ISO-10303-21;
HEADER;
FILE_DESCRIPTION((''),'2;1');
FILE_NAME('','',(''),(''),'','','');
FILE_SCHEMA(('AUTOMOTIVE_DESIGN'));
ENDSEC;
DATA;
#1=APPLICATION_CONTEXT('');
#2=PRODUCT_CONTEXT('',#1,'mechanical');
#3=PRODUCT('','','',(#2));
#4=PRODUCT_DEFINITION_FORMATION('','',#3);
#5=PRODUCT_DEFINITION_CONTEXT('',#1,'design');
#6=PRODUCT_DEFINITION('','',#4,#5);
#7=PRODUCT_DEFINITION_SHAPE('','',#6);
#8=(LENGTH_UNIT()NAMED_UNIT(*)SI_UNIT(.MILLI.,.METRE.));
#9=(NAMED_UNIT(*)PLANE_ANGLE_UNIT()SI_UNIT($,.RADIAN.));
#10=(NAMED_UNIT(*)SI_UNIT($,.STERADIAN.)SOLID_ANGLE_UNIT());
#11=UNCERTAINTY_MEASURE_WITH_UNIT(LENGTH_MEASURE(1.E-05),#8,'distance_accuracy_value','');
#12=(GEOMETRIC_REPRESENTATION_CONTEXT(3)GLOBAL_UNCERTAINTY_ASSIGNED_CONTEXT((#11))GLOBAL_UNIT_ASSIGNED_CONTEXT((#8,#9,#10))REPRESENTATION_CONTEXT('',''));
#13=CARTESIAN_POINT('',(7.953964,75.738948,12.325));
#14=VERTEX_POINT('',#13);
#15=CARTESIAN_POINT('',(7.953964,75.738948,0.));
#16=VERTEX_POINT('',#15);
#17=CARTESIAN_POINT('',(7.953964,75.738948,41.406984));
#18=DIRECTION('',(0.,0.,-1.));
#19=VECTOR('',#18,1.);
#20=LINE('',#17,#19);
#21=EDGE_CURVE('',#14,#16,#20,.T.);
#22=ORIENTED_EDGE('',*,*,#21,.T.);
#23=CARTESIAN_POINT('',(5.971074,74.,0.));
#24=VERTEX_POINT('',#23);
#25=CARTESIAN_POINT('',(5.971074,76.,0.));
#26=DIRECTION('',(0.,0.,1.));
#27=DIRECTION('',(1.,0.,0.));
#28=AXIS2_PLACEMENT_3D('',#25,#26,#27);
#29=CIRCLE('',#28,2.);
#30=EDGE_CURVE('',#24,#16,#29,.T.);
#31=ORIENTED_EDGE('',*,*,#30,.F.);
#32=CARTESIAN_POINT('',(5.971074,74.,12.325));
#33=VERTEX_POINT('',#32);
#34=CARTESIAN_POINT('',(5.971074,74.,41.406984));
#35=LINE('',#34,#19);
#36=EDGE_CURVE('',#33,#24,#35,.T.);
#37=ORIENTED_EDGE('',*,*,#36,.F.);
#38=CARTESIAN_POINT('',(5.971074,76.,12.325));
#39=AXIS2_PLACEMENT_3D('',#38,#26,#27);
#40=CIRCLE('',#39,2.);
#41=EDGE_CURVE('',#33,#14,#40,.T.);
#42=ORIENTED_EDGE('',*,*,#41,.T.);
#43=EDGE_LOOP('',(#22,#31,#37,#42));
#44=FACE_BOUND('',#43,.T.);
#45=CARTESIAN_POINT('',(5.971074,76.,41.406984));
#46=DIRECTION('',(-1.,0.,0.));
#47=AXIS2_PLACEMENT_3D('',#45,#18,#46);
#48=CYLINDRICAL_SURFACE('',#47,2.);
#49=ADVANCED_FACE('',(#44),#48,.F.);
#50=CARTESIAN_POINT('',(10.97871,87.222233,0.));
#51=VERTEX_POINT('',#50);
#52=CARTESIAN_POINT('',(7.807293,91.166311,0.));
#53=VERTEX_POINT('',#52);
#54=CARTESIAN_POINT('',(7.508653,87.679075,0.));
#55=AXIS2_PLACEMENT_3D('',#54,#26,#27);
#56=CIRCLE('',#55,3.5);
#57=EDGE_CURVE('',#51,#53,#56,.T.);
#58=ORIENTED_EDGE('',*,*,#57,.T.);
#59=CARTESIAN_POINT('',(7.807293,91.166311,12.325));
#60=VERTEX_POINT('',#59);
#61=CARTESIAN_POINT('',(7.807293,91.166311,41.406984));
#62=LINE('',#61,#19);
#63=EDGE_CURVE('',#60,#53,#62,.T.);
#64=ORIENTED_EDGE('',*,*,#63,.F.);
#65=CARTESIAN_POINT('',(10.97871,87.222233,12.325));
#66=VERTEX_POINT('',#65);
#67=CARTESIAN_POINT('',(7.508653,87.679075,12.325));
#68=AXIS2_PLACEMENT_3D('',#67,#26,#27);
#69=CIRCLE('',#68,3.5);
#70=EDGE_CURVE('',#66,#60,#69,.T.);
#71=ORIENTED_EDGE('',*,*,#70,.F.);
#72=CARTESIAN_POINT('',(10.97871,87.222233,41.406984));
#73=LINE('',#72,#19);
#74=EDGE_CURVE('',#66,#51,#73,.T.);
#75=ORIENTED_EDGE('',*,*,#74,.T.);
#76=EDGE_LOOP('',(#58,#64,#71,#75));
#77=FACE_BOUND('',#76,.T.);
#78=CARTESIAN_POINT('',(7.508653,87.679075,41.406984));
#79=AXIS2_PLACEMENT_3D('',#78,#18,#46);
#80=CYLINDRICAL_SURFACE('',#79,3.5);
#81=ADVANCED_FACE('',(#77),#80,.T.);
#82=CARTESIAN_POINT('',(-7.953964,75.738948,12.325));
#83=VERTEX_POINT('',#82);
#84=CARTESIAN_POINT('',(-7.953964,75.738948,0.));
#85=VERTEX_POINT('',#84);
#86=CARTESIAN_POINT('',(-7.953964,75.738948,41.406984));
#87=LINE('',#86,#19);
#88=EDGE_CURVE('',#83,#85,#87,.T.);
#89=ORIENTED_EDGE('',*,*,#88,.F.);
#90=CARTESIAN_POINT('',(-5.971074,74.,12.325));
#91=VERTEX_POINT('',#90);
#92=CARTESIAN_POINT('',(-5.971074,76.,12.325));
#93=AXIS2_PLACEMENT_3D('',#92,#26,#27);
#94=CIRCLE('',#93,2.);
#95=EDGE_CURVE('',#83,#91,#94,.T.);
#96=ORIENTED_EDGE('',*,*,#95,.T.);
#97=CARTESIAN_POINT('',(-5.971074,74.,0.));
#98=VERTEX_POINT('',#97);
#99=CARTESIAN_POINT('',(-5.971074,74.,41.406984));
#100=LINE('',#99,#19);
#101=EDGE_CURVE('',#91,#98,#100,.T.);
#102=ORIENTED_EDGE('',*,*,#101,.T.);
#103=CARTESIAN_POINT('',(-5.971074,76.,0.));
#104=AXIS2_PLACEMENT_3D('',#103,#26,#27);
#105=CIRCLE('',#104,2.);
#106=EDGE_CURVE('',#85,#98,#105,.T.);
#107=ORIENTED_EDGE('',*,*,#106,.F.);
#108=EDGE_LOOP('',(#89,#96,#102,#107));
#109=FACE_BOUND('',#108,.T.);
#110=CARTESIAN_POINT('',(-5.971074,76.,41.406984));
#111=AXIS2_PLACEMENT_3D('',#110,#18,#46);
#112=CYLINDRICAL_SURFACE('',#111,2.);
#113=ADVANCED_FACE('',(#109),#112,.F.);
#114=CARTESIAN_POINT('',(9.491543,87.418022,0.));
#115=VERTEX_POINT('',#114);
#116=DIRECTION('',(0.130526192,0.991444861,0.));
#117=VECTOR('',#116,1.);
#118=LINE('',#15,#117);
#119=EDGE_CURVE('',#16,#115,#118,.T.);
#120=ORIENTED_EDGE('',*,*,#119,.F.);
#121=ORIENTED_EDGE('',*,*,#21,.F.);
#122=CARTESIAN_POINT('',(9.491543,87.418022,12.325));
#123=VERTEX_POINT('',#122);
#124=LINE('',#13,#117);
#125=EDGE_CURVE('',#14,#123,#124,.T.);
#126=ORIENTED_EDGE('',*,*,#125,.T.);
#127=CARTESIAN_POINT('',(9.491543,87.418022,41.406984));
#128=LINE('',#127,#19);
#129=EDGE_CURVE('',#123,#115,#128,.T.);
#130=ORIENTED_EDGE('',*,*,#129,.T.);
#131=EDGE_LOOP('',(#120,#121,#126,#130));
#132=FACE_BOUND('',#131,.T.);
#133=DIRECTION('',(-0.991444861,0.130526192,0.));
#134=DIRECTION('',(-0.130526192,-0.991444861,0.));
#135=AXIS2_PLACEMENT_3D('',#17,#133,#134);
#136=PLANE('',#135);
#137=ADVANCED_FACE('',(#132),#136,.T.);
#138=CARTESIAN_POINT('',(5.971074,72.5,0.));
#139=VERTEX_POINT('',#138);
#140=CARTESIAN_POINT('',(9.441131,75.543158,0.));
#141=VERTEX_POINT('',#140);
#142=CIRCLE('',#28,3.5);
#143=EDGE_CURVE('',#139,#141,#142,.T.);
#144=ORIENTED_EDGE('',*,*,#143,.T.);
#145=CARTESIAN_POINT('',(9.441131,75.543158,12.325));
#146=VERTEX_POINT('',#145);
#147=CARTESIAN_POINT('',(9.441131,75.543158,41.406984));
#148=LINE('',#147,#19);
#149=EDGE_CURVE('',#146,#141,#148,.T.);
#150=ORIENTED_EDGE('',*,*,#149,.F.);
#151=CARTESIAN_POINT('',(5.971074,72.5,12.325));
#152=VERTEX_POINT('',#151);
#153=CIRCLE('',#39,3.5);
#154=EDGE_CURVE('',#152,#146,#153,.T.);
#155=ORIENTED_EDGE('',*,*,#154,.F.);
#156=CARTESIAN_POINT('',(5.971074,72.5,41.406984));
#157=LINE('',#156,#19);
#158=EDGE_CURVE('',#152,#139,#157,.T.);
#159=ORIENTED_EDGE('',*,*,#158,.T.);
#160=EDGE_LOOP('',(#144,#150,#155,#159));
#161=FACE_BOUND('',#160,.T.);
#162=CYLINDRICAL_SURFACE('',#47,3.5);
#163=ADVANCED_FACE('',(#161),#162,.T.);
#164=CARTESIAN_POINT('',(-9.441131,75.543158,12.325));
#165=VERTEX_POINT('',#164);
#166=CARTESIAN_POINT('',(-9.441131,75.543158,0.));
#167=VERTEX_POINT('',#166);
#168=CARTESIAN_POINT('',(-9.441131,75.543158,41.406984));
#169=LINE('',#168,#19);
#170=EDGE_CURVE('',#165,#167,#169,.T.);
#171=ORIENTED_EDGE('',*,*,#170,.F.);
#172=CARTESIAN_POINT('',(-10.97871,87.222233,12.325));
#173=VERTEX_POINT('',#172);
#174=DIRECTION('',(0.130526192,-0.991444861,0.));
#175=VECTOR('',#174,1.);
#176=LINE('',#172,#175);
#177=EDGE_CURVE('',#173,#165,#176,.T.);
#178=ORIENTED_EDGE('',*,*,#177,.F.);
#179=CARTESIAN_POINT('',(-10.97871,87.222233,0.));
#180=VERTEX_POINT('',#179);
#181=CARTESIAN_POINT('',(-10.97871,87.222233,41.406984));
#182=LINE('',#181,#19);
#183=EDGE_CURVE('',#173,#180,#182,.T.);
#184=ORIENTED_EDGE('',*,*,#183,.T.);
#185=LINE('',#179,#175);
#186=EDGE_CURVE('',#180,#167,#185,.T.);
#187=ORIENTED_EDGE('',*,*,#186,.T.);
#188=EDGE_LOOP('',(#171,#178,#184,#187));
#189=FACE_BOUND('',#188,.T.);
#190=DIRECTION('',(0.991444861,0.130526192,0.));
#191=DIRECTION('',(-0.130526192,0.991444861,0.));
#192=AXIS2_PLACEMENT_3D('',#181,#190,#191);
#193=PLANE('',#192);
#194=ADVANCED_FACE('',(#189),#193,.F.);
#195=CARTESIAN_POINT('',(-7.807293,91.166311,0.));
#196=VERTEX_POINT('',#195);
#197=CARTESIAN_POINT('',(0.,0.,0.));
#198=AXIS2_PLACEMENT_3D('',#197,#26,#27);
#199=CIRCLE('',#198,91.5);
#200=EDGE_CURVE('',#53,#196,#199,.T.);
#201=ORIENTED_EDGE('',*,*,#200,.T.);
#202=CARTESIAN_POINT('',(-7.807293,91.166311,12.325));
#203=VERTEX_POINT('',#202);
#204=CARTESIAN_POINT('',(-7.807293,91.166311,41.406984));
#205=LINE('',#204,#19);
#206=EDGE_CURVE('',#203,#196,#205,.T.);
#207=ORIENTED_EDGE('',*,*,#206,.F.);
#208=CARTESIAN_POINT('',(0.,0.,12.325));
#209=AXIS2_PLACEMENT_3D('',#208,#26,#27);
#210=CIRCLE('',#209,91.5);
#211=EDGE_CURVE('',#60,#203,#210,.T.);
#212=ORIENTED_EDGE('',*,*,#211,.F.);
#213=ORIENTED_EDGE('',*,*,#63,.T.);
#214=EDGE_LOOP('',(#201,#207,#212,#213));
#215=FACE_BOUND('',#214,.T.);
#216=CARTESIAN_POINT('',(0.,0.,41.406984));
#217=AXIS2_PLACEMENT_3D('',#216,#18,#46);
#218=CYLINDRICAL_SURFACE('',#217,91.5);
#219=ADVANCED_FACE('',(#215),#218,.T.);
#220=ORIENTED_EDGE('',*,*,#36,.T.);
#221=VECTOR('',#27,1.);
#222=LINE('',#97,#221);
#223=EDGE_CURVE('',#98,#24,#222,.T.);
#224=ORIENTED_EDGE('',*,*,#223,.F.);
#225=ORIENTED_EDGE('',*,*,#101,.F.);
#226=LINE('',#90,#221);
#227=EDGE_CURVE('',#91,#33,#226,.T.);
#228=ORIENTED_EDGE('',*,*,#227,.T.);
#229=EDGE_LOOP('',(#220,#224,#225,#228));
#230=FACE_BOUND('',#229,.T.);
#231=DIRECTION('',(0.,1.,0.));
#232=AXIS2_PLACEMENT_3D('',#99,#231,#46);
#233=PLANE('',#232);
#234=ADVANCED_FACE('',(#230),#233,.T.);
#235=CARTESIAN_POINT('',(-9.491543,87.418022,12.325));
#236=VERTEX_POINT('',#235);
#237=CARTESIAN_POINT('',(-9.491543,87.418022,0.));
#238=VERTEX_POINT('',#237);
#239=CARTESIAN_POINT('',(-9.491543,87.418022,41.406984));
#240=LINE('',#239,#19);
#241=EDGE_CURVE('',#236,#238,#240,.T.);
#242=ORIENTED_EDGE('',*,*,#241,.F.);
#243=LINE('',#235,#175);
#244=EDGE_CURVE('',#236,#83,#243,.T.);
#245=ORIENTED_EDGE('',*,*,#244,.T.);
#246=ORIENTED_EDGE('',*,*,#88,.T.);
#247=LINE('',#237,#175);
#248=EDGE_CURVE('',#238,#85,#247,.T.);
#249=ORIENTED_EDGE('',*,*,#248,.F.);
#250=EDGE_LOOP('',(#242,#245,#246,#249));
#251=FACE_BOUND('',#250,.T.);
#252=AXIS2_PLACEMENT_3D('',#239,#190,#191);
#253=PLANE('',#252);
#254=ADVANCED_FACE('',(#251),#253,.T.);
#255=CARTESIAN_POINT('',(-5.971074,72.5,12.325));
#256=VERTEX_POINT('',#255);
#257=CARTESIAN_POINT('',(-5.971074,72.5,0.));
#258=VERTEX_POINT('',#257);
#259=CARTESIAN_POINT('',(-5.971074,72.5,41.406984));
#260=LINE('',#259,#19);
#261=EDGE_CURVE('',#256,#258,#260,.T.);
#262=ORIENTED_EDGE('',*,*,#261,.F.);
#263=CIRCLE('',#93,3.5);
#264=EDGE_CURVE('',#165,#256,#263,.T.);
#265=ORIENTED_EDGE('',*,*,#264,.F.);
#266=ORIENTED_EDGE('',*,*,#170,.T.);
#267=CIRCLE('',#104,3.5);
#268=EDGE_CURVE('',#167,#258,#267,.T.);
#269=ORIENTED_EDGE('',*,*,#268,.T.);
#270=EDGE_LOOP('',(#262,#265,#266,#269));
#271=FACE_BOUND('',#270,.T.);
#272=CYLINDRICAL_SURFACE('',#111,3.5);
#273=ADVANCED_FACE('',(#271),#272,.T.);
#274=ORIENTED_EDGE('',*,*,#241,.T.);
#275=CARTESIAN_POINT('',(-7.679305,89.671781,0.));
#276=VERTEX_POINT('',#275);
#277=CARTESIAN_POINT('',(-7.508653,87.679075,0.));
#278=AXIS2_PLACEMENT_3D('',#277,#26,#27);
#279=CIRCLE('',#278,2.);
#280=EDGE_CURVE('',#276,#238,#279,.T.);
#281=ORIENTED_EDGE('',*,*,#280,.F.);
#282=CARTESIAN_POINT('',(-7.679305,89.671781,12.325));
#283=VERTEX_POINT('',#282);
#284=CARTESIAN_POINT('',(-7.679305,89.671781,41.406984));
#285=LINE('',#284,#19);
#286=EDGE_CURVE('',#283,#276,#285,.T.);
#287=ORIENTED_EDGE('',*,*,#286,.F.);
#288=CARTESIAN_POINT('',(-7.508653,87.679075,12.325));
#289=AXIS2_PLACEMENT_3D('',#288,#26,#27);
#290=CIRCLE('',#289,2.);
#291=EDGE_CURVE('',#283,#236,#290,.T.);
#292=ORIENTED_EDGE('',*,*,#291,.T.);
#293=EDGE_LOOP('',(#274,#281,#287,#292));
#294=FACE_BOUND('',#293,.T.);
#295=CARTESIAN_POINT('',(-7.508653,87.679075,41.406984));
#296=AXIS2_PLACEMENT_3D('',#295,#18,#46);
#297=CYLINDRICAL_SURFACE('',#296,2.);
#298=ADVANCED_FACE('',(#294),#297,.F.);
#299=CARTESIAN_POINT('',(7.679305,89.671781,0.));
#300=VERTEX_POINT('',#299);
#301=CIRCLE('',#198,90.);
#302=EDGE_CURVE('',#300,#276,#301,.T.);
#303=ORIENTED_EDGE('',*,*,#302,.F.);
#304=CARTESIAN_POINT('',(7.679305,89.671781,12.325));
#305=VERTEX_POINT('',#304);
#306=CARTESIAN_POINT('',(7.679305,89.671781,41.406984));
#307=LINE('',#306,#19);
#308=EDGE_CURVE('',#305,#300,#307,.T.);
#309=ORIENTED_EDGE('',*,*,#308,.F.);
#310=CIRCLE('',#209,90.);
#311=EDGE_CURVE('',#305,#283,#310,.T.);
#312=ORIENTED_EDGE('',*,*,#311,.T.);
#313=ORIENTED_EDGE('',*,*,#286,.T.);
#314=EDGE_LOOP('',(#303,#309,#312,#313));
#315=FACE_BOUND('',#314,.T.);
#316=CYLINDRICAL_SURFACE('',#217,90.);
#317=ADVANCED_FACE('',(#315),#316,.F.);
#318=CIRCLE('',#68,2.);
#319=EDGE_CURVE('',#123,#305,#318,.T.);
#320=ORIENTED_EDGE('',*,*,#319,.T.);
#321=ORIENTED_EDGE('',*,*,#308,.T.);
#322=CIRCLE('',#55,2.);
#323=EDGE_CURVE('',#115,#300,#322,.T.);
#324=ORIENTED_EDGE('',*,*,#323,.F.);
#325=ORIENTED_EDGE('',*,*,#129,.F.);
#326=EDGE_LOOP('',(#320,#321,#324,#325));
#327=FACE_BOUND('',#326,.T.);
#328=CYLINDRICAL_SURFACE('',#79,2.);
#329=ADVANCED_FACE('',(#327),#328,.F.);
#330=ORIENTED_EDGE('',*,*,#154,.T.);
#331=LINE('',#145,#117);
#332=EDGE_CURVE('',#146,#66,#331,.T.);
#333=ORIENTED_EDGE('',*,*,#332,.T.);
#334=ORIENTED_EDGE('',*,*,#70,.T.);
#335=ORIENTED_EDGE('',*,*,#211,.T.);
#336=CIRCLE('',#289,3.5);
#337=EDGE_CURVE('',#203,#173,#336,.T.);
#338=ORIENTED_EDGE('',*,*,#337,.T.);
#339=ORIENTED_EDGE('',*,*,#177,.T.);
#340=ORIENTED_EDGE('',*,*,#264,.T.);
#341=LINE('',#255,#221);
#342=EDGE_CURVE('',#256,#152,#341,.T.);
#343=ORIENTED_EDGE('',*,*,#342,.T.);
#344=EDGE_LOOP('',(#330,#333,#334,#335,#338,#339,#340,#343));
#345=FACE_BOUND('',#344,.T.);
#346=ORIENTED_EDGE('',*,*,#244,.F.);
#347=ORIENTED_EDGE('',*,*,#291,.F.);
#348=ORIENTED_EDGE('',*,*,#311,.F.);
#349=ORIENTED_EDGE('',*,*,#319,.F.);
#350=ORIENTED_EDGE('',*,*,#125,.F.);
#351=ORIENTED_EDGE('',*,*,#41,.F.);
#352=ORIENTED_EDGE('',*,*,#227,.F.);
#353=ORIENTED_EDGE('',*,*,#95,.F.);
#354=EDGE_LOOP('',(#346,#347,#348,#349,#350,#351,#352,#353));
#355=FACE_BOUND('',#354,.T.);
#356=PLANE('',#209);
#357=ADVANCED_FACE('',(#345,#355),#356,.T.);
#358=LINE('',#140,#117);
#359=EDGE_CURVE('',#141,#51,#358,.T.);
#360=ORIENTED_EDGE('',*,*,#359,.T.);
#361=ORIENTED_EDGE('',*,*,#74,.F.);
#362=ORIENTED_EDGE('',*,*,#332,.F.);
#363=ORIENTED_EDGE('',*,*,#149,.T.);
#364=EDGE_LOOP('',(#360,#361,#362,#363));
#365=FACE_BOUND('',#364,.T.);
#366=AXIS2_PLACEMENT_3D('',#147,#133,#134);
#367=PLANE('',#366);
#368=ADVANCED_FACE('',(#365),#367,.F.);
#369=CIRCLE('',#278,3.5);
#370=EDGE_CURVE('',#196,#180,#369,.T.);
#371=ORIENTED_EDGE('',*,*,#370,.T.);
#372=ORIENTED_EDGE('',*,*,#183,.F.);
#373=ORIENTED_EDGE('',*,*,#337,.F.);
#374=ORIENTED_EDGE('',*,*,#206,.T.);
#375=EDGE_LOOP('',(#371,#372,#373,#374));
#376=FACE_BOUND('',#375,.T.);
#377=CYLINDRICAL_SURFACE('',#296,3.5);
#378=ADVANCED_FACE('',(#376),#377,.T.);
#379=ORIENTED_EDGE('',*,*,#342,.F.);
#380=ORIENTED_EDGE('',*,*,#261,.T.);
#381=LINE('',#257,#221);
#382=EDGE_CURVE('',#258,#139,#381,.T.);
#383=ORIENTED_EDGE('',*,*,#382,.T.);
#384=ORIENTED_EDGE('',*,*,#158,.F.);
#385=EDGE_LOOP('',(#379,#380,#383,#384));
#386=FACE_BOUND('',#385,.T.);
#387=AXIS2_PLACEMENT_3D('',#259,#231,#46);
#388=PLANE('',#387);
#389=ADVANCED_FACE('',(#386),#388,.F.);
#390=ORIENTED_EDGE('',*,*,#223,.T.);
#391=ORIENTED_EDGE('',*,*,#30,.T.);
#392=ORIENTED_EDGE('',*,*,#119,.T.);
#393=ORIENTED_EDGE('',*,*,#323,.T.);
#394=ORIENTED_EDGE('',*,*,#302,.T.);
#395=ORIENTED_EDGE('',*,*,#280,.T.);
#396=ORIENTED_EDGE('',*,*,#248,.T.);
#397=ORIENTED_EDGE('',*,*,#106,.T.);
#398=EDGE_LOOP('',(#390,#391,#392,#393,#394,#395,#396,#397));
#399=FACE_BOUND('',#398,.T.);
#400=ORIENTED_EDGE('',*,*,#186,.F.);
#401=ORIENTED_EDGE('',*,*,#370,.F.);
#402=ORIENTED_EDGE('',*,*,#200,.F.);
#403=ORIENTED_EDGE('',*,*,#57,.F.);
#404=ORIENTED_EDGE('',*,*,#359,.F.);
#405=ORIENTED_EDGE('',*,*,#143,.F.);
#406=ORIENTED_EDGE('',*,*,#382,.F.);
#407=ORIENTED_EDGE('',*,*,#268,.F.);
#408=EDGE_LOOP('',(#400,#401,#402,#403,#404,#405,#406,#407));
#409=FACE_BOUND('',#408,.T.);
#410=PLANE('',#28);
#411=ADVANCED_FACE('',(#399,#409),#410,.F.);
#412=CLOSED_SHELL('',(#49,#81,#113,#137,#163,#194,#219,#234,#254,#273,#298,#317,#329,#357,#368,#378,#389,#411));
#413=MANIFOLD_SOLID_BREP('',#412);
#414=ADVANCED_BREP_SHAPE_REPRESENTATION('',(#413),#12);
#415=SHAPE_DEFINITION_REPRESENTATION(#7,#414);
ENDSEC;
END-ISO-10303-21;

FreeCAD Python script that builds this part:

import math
import FreeCAD as App
import Part
import Sketcher
Q = App.Units.Quantity

doc = App.newDocument("Part")
body = doc.addObject("PartDesign::Body", "Body")

sketch1 = doc.addObject("Sketcher::SketchObject", "Sketch")
body.addObject(sketch1)
sketch1.AttachmentSupport = (doc.XY_Plane, [""])
sketch1.MapMode = "FlatFace"
sketch1.addGeometry([
    Part.LineSegment(App.Vector(9.4, 75.5, 0), App.Vector(11, 87.2, 0)),
    Part.ArcOfCircle(Part.Circle(App.Vector(7.5, 87.7, 0), App.Vector(0, 0, 1), 3.5), math.radians(-8), math.radians(85)),
    Part.ArcOfCircle(Part.Circle(App.Vector(0, 0, 0), App.Vector(0, 0, 1), 91.5), math.radians(85.11), math.radians(94.89)),
    Part.ArcOfCircle(Part.Circle(App.Vector(-7.5, 87.7, 0), App.Vector(0, 0, 1), 3.5), math.radians(95), math.radians(188)),
    Part.LineSegment(App.Vector(-11, 87.2, 0), App.Vector(-9.4, 75.5, 0)),
    Part.ArcOfCircle(Part.Circle(App.Vector(-6, 76, 0), App.Vector(0, 0, 1), 3.5), math.radians(-172), math.radians(-90)),
    Part.LineSegment(App.Vector(-6, 72.5, 0), App.Vector(6, 72.5, 0)),
    Part.ArcOfCircle(Part.Circle(App.Vector(6, 76, 0), App.Vector(0, 0, 1), 3.5), math.radians(-90), math.radians(-8)),
    Part.LineSegment(App.Vector(-8, 75.7, 0), App.Vector(-9.5, 87.4, 0)),
    Part.ArcOfCircle(Part.Circle(App.Vector(-7.5, 87.7, 0), App.Vector(0, 0, 1), 2), math.radians(95), math.radians(187)),
    Part.ArcOfCircle(Part.Circle(App.Vector(0, 0, 0), App.Vector(0, 0, 1), 90), math.radians(85.11), math.radians(94.89)),
    Part.ArcOfCircle(Part.Circle(App.Vector(7.5, 87.7, 0), App.Vector(0, 0, 1), 2), math.radians(-7), math.radians(85)),
    Part.LineSegment(App.Vector(9.5, 87.4, 0), App.Vector(8, 75.7, 0)),
    Part.ArcOfCircle(Part.Circle(App.Vector(6, 76, 0), App.Vector(0, 0, 1), 2), math.radians(-90), math.radians(-7)),
    Part.LineSegment(App.Vector(6, 74, 0), App.Vector(-6, 74, 0)),
    Part.ArcOfCircle(Part.Circle(App.Vector(-6, 76, 0), App.Vector(0, 0, 1), 2), math.radians(-173), math.radians(-90)),
], False)
sketch1.addConstraint([
    Sketcher.Constraint("Tangent", 0, 2, 1, 1),
    Sketcher.Constraint("Tangent", 1, 2, 2, 1),
    Sketcher.Constraint("Tangent", 2, 2, 3, 1),
    Sketcher.Constraint("Tangent", 3, 2, 4, 1),
    Sketcher.Constraint("Tangent", 4, 2, 5, 1),
    Sketcher.Constraint("Tangent", 5, 2, 6, 1),
    Sketcher.Constraint("Tangent", 6, 2, 7, 1),
    Sketcher.Constraint("Tangent", 7, 2, 0, 1),
    Sketcher.Constraint("Tangent", 8, 2, 9, 2),
    Sketcher.Constraint("Tangent", 9, 1, 10, 2),
    Sketcher.Constraint("Tangent", 10, 1, 11, 2),
    Sketcher.Constraint("Tangent", 11, 1, 12, 1),
    Sketcher.Constraint("Tangent", 12, 2, 13, 2),
    Sketcher.Constraint("Tangent", 13, 1, 14, 1),
    Sketcher.Constraint("Tangent", 14, 2, 15, 2),
    Sketcher.Constraint("Tangent", 15, 1, 8, 1),
    Sketcher.Constraint("Horizontal", 6),
    Sketcher.Constraint("Horizontal", 14),
    Sketcher.Constraint("Coincident", 2, 3, -1, 1),
    Sketcher.Constraint("Coincident", 10, 3, -1, 1),
    Sketcher.Constraint("Coincident", 9, 3, 3, 3),
    Sketcher.Constraint("Coincident", 11, 3, 1, 3),
    Sketcher.Constraint("Coincident", 13, 3, 7, 3),
    Sketcher.Constraint("Coincident", 15, 3, 5, 3),
    Sketcher.Constraint("Equal", 1, 3),
    Sketcher.Constraint("Equal", 3, 5),
    Sketcher.Constraint("Equal", 5, 7),
    Sketcher.Constraint("Equal", 11, 13),
    Sketcher.Constraint("Symmetric", 0, 2, 3, 2, -2),
    Sketcher.Constraint("Radius", 9, Q("2 mm")),
    Sketcher.Constraint("Radius", 10, Q("90 mm")),
    Sketcher.Constraint("Radius", 1, Q("3.5 mm")),
    Sketcher.Constraint("DistanceY", -1, 1, 5, 3, Q("76 mm")),
    Sketcher.Constraint("Angle", 0, Q("82.5 deg")),
    Sketcher.Constraint("DistanceX", 6, 1, 6, 2, Q("11.942148 mm")),
])
pad1 = doc.addObject("PartDesign::Pad", "Pad")
body.addObject(pad1)
pad1.Profile = sketch1
pad1.Length = 12.325

doc.recompute()
